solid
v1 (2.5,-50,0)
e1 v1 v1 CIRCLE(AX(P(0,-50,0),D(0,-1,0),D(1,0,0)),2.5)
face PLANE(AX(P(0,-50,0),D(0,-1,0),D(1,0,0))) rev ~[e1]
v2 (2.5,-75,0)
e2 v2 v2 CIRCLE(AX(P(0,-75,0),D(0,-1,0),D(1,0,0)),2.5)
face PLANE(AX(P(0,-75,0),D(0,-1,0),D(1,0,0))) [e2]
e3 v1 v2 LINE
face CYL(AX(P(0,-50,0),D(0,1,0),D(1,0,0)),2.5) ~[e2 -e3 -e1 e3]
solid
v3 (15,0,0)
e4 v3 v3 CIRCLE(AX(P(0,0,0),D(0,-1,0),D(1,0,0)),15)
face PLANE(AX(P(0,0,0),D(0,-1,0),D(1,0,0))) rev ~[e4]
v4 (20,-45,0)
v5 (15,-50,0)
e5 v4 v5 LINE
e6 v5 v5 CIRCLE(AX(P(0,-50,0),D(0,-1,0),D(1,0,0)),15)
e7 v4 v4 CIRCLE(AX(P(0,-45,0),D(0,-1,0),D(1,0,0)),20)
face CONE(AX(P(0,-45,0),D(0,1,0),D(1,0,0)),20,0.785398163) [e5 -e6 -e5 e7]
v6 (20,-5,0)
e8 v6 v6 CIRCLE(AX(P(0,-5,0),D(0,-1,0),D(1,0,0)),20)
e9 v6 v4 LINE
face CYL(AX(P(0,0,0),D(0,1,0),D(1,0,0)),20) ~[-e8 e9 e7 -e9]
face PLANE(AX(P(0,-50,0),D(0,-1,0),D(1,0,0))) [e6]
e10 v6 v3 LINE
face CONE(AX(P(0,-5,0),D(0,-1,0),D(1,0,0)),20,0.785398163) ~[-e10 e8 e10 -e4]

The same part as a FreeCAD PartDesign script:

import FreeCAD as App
import Part
import Sketcher
Q = App.Units.Quantity


def edges_at(feature, points):
    """Names of the edges that pass closest to the given points."""
    edges = feature.Shape.Edges
    near = lambda p: min(range(len(edges)), key=lambda i: edges[i].distToShape(Part.Vertex(*p))[0])
    return sorted({f"Edge{near(p) + 1}" for p in points})

doc = App.newDocument("Part")
body = doc.addObject("PartDesign::Body", "Body")

sketch1 = doc.addObject("Sketcher::SketchObject", "Sketch")
body.addObject(sketch1)
sketch1.AttachmentSupport = (doc.XZ_Plane, [""])
sketch1.MapMode = "FlatFace"
sketch1.addGeometry(Part.Circle(App.Vector(0, 0, 0), App.Vector(0, 0, 1), 20), False)
sketch1.addConstraint([
    Sketcher.Constraint("Coincident", 0, 3, -1, 1),
    Sketcher.Constraint("Diameter", 0, Q("40 mm")),
])
pad1 = doc.addObject("PartDesign::Pad", "Pad")
body.addObject(pad1)
pad1.Profile = sketch1
pad1.Length = 50
doc.recompute()

chamfer = doc.addObject("PartDesign::Chamfer", "Chamfer")
body.addObject(chamfer)
chamfer.Base = (pad1, edges_at(pad1, [(-20, -50, 0)]))
chamfer.Size = 5
doc.recompute()

chamfer2 = doc.addObject("PartDesign::Chamfer", "Chamfer001")
body.addObject(chamfer2)
chamfer2.Base = (chamfer, edges_at(chamfer, [(-20, 0, 0)]))
chamfer2.Size = 5
body2 = doc.addObject("PartDesign::Body", "Body001")

sketch2 = doc.addObject("Sketcher::SketchObject", "Sketch001")
body2.addObject(sketch2)
sketch2.AttachmentSupport = (doc.getObject("XZ_Plane001"), [""])
sketch2.MapMode = "FlatFace"
sketch2.AttachmentOffset = App.Placement(App.Vector(0, 0, 50), App.Rotation())
sketch2.addGeometry(Part.Circle(App.Vector(0, 0, 0), App.Vector(0, 0, 1), 2.5), False)
sketch2.addConstraint([
    Sketcher.Constraint("Coincident", 0, 3, -1, 1),
    Sketcher.Constraint("Diameter", 0, Q("5 mm")),
])
pad2 = doc.addObject("PartDesign::Pad", "Pad001")
body2.addObject(pad2)
pad2.Profile = sketch2
pad2.Length = 25

doc.recompute()
